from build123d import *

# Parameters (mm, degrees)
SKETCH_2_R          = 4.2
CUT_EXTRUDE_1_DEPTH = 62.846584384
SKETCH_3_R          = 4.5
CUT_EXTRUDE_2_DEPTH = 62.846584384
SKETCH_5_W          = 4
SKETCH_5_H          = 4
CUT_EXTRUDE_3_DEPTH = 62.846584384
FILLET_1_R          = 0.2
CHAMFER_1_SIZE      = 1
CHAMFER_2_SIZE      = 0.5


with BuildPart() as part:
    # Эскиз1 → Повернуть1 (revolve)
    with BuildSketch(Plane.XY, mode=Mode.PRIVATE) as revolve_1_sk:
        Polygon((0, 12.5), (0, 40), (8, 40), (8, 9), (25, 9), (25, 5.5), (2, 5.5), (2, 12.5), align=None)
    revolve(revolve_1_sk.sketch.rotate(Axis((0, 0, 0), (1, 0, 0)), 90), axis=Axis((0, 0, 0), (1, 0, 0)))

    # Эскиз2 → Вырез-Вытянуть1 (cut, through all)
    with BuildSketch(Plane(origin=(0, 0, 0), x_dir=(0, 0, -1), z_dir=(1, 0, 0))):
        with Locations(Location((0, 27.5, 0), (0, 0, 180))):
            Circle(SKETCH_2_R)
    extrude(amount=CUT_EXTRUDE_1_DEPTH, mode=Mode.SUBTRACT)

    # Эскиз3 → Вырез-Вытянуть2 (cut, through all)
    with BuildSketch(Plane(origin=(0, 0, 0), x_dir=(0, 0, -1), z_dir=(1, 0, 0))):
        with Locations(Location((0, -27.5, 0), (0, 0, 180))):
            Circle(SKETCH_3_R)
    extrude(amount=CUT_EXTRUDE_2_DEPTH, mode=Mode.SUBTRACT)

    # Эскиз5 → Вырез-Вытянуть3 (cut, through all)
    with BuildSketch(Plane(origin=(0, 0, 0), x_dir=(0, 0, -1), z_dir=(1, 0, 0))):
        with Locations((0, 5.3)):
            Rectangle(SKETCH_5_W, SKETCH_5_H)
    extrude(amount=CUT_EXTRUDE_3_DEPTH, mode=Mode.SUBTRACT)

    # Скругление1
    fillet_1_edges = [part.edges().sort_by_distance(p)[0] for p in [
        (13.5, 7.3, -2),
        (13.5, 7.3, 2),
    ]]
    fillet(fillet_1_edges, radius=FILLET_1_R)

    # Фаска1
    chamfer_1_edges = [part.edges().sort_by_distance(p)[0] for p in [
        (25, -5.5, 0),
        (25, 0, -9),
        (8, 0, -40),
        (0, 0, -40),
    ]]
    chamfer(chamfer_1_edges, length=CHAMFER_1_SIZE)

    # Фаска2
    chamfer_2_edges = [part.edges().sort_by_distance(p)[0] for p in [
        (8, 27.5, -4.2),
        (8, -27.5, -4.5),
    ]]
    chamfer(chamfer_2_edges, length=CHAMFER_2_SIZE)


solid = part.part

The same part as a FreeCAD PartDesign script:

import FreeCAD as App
import Part
import Sketcher
from FreeCAD import Vector


def edges_at(feature, points):
    """Names of the edges that pass closest to the given points."""
    edges = feature.Shape.Edges
    near = lambda p: min(range(len(edges)), key=lambda i: edges[i].distToShape(Part.Vertex(*p))[0])
    return sorted({f"Edge{near(p) + 1}" for p in points})


def add_polygon(sketch, points):
    """Adds a closed chain of lines whose ends are joined by coincident constraints."""
    first, n = sketch.GeometryCount, len(points)
    for a, b in zip(points, points[1:] + points[:1]):
        sketch.addGeometry(Part.LineSegment(App.Vector(*a, 0), App.Vector(*b, 0)), False)
    for i in range(n):
        sketch.addConstraint(Sketcher.Constraint("Coincident", first + i, 2, first + (i + 1) % n, 1))

doc = App.newDocument("Part")
params = doc.addObject("Spreadsheet::Sheet", "Params")
for row, (alias, value) in enumerate([
    ("sketch1_width", "2 mm"),
    ("sketch1_width2", "23 mm"),
    ("sketch1_width3", "17 mm"),
    ("sketch1_height", "7 mm"),
    ("sketch1_height2", "31 mm"),
    ("revolution_angle", "360 deg"),
    ("sketch2_diameter", "8.4 mm"),
    ("sketch3_diameter", "9 mm"),
    ("sketch4_width", "4 mm"),
    ("fillet_radius", "0.2 mm"),
    ("chamfer_size", "1 mm"),
    ("chamfer2_size", "0.5 mm"),
], start=1):
    params.set(f"A{row}", alias)
    params.set(f"B{row}", "=" + value)
    params.setAlias(f"B{row}", alias)

body = doc.addObject("PartDesign::Body", "Body")

# Sketch on XY plane
sketch1 = body.newObject("Sketcher::SketchObject", "Sketch")
sketch1.AttachmentSupport = (doc.getObject("XY_Plane"), [""])
sketch1.MapMode = "FlatFace"
add_polygon(sketch1, [(0, 40), (0, 12.5), (2, 12.5), (2, 5.5), (25, 5.5), (25, 9), (8, 9), (8, 40)])  # lines 0-7
sketch1.addConstraint(Sketcher.Constraint("Vertical", 0))
sketch1.addConstraint(Sketcher.Constraint("Horizontal", 1))
sketch1.addConstraint(Sketcher.Constraint("Vertical", 2))
sketch1.addConstraint(Sketcher.Constraint("Horizontal", 3))
sketch1.addConstraint(Sketcher.Constraint("Vertical", 4))
sketch1.addConstraint(Sketcher.Constraint("Horizontal", 5))
sketch1.addConstraint(Sketcher.Constraint("Vertical", 6))
sketch1.addConstraint(Sketcher.Constraint("Horizontal", 7))
sketch1.addConstraint(Sketcher.Constraint("PointOnObject", 0, 2, -2))
sketch1.addConstraint(Sketcher.Constraint("DistanceX", 1, 1, 1, 2, 2.0))
sketch1.addConstraint(Sketcher.Constraint("DistanceX", 3, 1, 3, 2, 23.0))
sketch1.addConstraint(Sketcher.Constraint("DistanceX", 5, 2, 5, 1, 17.0))
sketch1.addConstraint(Sketcher.Constraint("DistanceY", 2, 2, 2, 1, 7.0))
sketch1.addConstraint(Sketcher.Constraint("DistanceY", 6, 1, 6, 2, 31.0))
sketch1.addConstraint(Sketcher.Constraint("DistanceY", 0, 2, 0, 1, 27.5))
sketch1.addConstraint(Sketcher.Constraint("DistanceY", -1, 1, 4, 2, 9.0))
sketch1.setExpression("Constraints[17]", "Params.sketch1_width")
sketch1.setExpression("Constraints[18]", "Params.sketch1_width2")
sketch1.setExpression("Constraints[19]", "Params.sketch1_width3")
sketch1.setExpression("Constraints[20]", "Params.sketch1_height")
sketch1.setExpression("Constraints[21]", "Params.sketch1_height2")
revolution = body.newObject("PartDesign::Revolution", "Revolution")
revolution.Profile = sketch1
revolution.ReferenceAxis = (sketch1, ["H_Axis"])
revolution.setExpression("Angle", "Params.revolution_angle")

# Sketch on YZ plane
sketch2 = body.newObject("Sketcher::SketchObject", "Sketch001")
sketch2.AttachmentSupport = (doc.getObject("YZ_Plane"), [""])
sketch2.MapMode = "FlatFace"
sketch2.addGeometry(Part.Circle(Vector(27.5, 0, 0), Vector(0, 0, 1), 4.2), False)
sketch2.addConstraint(Sketcher.Constraint("PointOnObject", 0, 3, -1))
sketch2.addConstraint(Sketcher.Constraint("Diameter", 0, 8.4))
sketch2.addConstraint(Sketcher.Constraint("DistanceX", -1, 1, 0, 3, 27.5))
sketch2.setExpression("Constraints[1]", "Params.sketch2_diameter")
pocket1 = body.newObject("PartDesign::Pocket", "Pocket")
pocket1.Profile = sketch2
pocket1.Type = "ThroughAll"
pocket1.Reversed = True

# Sketch on YZ plane
sketch3 = body.newObject("Sketcher::SketchObject", "Sketch002")
sketch3.AttachmentSupport = (doc.getObject("YZ_Plane"), [""])
sketch3.MapMode = "FlatFace"
sketch3.addGeometry(Part.Circle(Vector(-27.5, 0, 0), Vector(0, 0, 1), 4.5), False)
sketch3.addConstraint(Sketcher.Constraint("PointOnObject", 0, 3, -1))
sketch3.addConstraint(Sketcher.Constraint("Diameter", 0, 9.0))
sketch3.addConstraint(Sketcher.Constraint("DistanceX", 0, 3, -1, 1, 27.5))
sketch3.setExpression("Constraints[1]", "Params.sketch3_diameter")
pocket2 = body.newObject("PartDesign::Pocket", "Pocket001")
pocket2.Profile = sketch3
pocket2.Type = "ThroughAll"
pocket2.Reversed = True

# Sketch on YZ plane
sketch4 = body.newObject("Sketcher::SketchObject", "Sketch003")
sketch4.AttachmentSupport = (doc.getObject("YZ_Plane"), [""])
sketch4.MapMode = "FlatFace"
add_polygon(sketch4, [(7.3, 2), (3.3, 2), (3.3, -2), (7.3, -2)])  # lines 0-3
sketch4.addConstraint(Sketcher.Constraint("Horizontal", 0))
sketch4.addConstraint(Sketcher.Constraint("Vertical", 1))
sketch4.addConstraint(Sketcher.Constraint("Horizontal", 2))
sketch4.addConstraint(Sketcher.Constraint("Vertical", 3))
sketch4.addConstraint(Sketcher.Constraint("Equal", 2, 1))
sketch4.addConstraint(Sketcher.Constraint("DistanceX", 0, 2, 0, 1, 4.0))
sketch4.addConstraint(Sketcher.Constraint("DistanceY", -1, 1, 0, 2, 2.0))
sketch4.addConstraint(Sketcher.Constraint("DistanceX", -1, 1, 0, 2, 3.3))
sketch4.setExpression("Constraints[9]", "Params.sketch4_width")
pocket3 = body.newObject("PartDesign::Pocket", "Pocket002")
pocket3.Profile = sketch4
pocket3.Type = "ThroughAll"
pocket3.Reversed = True
doc.recompute()

fillet = body.newObject("PartDesign::Fillet", "Fillet")
fillet.Base = (pocket3, edges_at(pocket3, [(13.5, 7.3, -2), (13.5, 7.3, 2)]))
fillet.setExpression("Radius", "Params.fillet_radius")
doc.recompute()

chamfer = body.newObject("PartDesign::Chamfer", "Chamfer")
chamfer.Base = (fillet, edges_at(fillet, [
    (25, -5.5, 0),
    (25, 0, -9),
    (8, 0, -40),
    (0, 0, -40),
]))
chamfer.setExpression("Size", "Params.chamfer_size")
doc.recompute()

chamfer2 = body.newObject("PartDesign::Chamfer", "Chamfer001")
chamfer2.Base = (chamfer, edges_at(chamfer, [(8, 27.5, -4.2), (8, -27.5, -4.5)]))
chamfer2.setExpression("Size", "Params.chamfer2_size")

doc.recompute()
